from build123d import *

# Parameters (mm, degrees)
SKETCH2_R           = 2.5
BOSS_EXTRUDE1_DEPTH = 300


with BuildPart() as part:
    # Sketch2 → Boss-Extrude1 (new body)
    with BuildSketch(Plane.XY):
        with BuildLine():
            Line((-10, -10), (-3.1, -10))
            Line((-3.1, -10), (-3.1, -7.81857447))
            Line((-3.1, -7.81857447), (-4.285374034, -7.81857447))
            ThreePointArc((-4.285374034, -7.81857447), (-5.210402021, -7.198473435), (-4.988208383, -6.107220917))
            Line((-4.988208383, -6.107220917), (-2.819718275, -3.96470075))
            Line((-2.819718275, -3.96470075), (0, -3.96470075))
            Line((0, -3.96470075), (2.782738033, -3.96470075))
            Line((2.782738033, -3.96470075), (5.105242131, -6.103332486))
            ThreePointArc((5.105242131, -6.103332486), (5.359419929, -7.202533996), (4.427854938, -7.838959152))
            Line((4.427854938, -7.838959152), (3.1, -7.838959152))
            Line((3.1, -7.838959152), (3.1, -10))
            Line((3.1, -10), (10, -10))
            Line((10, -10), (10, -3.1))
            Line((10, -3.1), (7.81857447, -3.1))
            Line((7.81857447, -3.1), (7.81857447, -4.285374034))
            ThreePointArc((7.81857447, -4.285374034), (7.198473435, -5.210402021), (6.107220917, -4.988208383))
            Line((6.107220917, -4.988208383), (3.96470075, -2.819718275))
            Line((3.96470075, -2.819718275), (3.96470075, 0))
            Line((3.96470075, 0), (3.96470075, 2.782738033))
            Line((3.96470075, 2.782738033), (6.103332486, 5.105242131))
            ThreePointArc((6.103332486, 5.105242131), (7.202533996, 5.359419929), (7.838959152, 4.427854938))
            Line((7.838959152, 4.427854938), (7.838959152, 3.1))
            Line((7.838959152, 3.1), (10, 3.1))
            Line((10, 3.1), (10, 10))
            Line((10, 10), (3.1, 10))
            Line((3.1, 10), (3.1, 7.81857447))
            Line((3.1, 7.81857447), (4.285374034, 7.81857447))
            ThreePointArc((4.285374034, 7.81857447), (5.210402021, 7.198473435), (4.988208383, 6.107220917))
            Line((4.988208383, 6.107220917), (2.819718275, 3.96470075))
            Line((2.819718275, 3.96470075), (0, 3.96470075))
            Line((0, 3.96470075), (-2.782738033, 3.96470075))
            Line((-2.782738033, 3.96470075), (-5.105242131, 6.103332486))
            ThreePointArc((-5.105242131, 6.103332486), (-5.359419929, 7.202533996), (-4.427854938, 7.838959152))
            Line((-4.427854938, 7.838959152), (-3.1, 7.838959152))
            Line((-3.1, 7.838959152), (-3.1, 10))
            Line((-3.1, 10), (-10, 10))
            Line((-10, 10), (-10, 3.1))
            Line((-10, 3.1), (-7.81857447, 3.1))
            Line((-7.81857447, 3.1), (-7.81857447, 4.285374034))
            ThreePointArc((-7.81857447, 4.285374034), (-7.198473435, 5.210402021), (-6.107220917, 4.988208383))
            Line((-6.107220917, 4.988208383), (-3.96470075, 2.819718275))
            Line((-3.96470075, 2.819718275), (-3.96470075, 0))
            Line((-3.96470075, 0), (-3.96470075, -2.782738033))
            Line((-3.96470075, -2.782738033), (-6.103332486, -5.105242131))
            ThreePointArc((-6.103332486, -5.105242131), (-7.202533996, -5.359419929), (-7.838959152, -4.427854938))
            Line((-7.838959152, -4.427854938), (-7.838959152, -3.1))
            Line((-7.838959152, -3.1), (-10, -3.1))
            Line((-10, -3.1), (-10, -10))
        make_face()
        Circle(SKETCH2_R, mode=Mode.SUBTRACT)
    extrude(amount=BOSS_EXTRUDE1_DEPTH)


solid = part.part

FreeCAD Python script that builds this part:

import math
import FreeCAD as App
import Part
import Sketcher
from FreeCAD import Vector
Q = App.Units.Quantity

doc = App.newDocument("Part")
params = doc.addObject("Spreadsheet::Sheet", "Params")
for row, (alias, value) in enumerate([
    ("sketch1_diameter", "5 mm"),
    ("sketch1_radius", "1 mm"),
    ("sketch1_width", "6.9 mm"),
    ("pad1_length", "300 mm"),
], start=1):
    params.set(f"A{row}", alias)
    params.set(f"B{row}", "=" + value)
    params.setAlias(f"B{row}", alias)

body = doc.addObject("PartDesign::Body", "Body")

# Sketch on XY plane
sketch1 = body.newObject("Sketcher::SketchObject", "Sketch")
sketch1.AttachmentSupport = (doc.getObject("XY_Plane"), [""])
sketch1.MapMode = "FlatFace"
sketch1.addGeometry(Part.LineSegment(Vector(-10, -10, 0), Vector(-3.1, -10, 0)), False)
sketch1.addGeometry(Part.LineSegment(Vector(-3.1, -10, 0), Vector(-3.1, -7.818574, 0)), False)
sketch1.addGeometry(Part.LineSegment(Vector(-3.1, -7.818574, 0), Vector(-4.285374, -7.818574, 0)), False)
sketch1.addGeometry(Part.ArcOfCircle(Part.Circle(Vector(-4.285374, -6.818574, 0), Vector(0, 0, 1), 1), math.radians(134.654849), math.radians(270)), False)
sketch1.addGeometry(Part.LineSegment(Vector(-4.988208, -6.107221, 0), Vector(-2.819718, -3.964701, 0)), False)
sketch1.addGeometry(Part.LineSegment(Vector(-2.819718, -3.964701, 0), Vector(2.782738, -3.964701, 0)), False)
sketch1.addGeometry(Part.LineSegment(Vector(2.782738, -3.964701, 0), Vector(5.105242, -6.103332, 0)), False)
sketch1.addGeometry(Part.ArcOfCircle(Part.Circle(Vector(4.427855, -6.838959, 0), Vector(0, 0, 1), 1), math.radians(-90), math.radians(47.360195)), False)
sketch1.addGeometry(Part.LineSegment(Vector(4.427855, -7.838959, 0), Vector(3.1, -7.838959, 0)), False)
sketch1.addGeometry(Part.LineSegment(Vector(3.1, -7.838959, 0), Vector(3.1, -10, 0)), False)
sketch1.addGeometry(Part.LineSegment(Vector(3.1, -10, 0), Vector(10, -10, 0)), False)
sketch1.addGeometry(Part.LineSegment(Vector(10, -10, 0), Vector(10, -3.1, 0)), False)
sketch1.addGeometry(Part.LineSegment(Vector(10, -3.1, 0), Vector(7.818574, -3.1, 0)), False)
sketch1.addGeometry(Part.LineSegment(Vector(7.818574, -3.1, 0), Vector(7.818574, -4.285374, 0)), False)
sketch1.addGeometry(Part.ArcOfCircle(Part.Circle(Vector(6.818574, -4.285374, 0), Vector(0, 0, 1), 1), math.radians(-135.345151), math.radians(0)), False)
sketch1.addGeometry(Part.LineSegment(Vector(6.107221, -4.988208, 0), Vector(3.964701, -2.819718, 0)), False)
sketch1.addGeometry(Part.LineSegment(Vector(3.964701, -2.819718, 0), Vector(3.964701, 2.782738, 0)), False)
sketch1.addGeometry(Part.LineSegment(Vector(3.964701, 2.782738, 0), Vector(6.103332, 5.105242, 0)), False)
sketch1.addGeometry(Part.ArcOfCircle(Part.Circle(Vector(6.838959, 4.427855, 0), Vector(0, 0, 1), 1), math.radians(0), math.radians(137.360195)), False)
sketch1.addGeometry(Part.LineSegment(Vector(7.838959, 4.427855, 0), Vector(7.838959, 3.1, 0)), False)
sketch1.addGeometry(Part.LineSegment(Vector(7.838959, 3.1, 0), Vector(10, 3.1, 0)), False)
sketch1.addGeometry(Part.LineSegment(Vector(10, 3.1, 0), Vector(10, 10, 0)), False)
sketch1.addGeometry(Part.LineSegment(Vector(10, 10, 0), Vector(3.1, 10, 0)), False)
sketch1.addGeometry(Part.LineSegment(Vector(3.1, 10, 0), Vector(3.1, 7.818574, 0)), False)
sketch1.addGeometry(Part.LineSegment(Vector(3.1, 7.818574, 0), Vector(4.285374, 7.818574, 0)), False)
sketch1.addGeometry(Part.ArcOfCircle(Part.Circle(Vector(4.285374, 6.818574, 0), Vector(0, 0, 1), 1), math.radians(-45.345151), math.radians(90)), False)
sketch1.addGeometry(Part.LineSegment(Vector(4.988208, 6.107221, 0), Vector(2.819718, 3.964701, 0)), False)
sketch1.addGeometry(Part.LineSegment(Vector(2.819718, 3.964701, 0), Vector(-2.782738, 3.964701, 0)), False)
sketch1.addGeometry(Part.LineSegment(Vector(-2.782738, 3.964701, 0), Vector(-5.105242, 6.103332, 0)), False)
sketch1.addGeometry(Part.ArcOfCircle(Part.Circle(Vector(-4.427855, 6.838959, 0), Vector(0, 0, 1), 1), math.radians(90), math.radians(227.360195)), False)
sketch1.addGeometry(Part.LineSegment(Vector(-4.427855, 7.838959, 0), Vector(-3.1, 7.838959, 0)), False)
sketch1.addGeometry(Part.LineSegment(Vector(-3.1, 7.838959, 0), Vector(-3.1, 10, 0)), False)
sketch1.addGeometry(Part.LineSegment(Vector(-3.1, 10, 0), Vector(-10, 10, 0)), False)
sketch1.addGeometry(Part.LineSegment(Vector(-10, 10, 0), Vector(-10, 3.1, 0)), False)
sketch1.addGeometry(Part.LineSegment(Vector(-10, 3.1, 0), Vector(-7.818574, 3.1, 0)), False)
sketch1.addGeometry(Part.LineSegment(Vector(-7.818574, 3.1, 0), Vector(-7.818574, 4.285374, 0)), False)
sketch1.addGeometry(Part.ArcOfCircle(Part.Circle(Vector(-6.818574, 4.285374, 0), Vector(0, 0, 1), 1), math.radians(44.654849), math.radians(180)), False)
sketch1.addGeometry(Part.LineSegment(Vector(-6.107221, 4.988208, 0), Vector(-3.964701, 2.819718, 0)), False)
sketch1.addGeometry(Part.LineSegment(Vector(-3.964701, 2.819718, 0), Vector(-3.964701, -2.782738, 0)), False)
sketch1.addGeometry(Part.LineSegment(Vector(-3.964701, -2.782738, 0), Vector(-6.103332, -5.105242, 0)), False)
sketch1.addGeometry(Part.ArcOfCircle(Part.Circle(Vector(-6.838959, -4.427855, 0), Vector(0, 0, 1), 1), math.radians(-180), math.radians(-42.639805)), False)
sketch1.addGeometry(Part.LineSegment(Vector(-7.838959, -4.427855, 0), Vector(-7.838959, -3.1, 0)), False)
sketch1.addGeometry(Part.LineSegment(Vector(-7.838959, -3.1, 0), Vector(-10, -3.1, 0)), False)
sketch1.addGeometry(Part.LineSegment(Vector(-10, -3.1, 0), Vector(-10, -10, 0)), False)
sketch1.addGeometry(Part.Circle(Vector(0, 0, 0), Vector(0, 0, 1), 2.5), False)
sketch1.addConstraint(Sketcher.Constraint("Coincident", 0, 2, 1, 1))
sketch1.addConstraint(Sketcher.Constraint("Coincident", 1, 2, 2, 1))
sketch1.addConstraint(Sketcher.Constraint("Tangent", 2, 2, 3, 2))
sketch1.addConstraint(Sketcher.Constraint("Tangent", 3, 1, 4, 1))
sketch1.addConstraint(Sketcher.Constraint("Coincident", 4, 2, 5, 1))
sketch1.addConstraint(Sketcher.Constraint("Coincident", 5, 2, 6, 1))
sketch1.addConstraint(Sketcher.Constraint("Tangent", 6, 2, 7, 2))
sketch1.addConstraint(Sketcher.Constraint("Tangent", 7, 1, 8, 1))
sketch1.addConstraint(Sketcher.Constraint("Coincident", 8, 2, 9, 1))
sketch1.addConstraint(Sketcher.Constraint("Coincident", 9, 2, 10, 1))
sketch1.addConstraint(Sketcher.Constraint("Coincident", 10, 2, 11, 1))
sketch1.addConstraint(Sketcher.Constraint("Coincident", 11, 2, 12, 1))
sketch1.addConstraint(Sketcher.Constraint("Coincident", 12, 2, 13, 1))
sketch1.addConstraint(Sketcher.Constraint("Tangent", 13, 2, 14, 2))
sketch1.addConstraint(Sketcher.Constraint("Tangent", 14, 1, 15, 1))
sketch1.addConstraint(Sketcher.Constraint("Coincident", 15, 2, 16, 1))
sketch1.addConstraint(Sketcher.Constraint("Coincident", 16, 2, 17, 1))
sketch1.addConstraint(Sketcher.Constraint("Tangent", 17, 2, 18, 2))
sketch1.addConstraint(Sketcher.Constraint("Tangent", 18, 1, 19, 1))
sketch1.addConstraint(Sketcher.Constraint("Coincident", 19, 2, 20, 1))
sketch1.addConstraint(Sketcher.Constraint("Coincident", 20, 2, 21, 1))
sketch1.addConstraint(Sketcher.Constraint("Coincident", 21, 2, 22, 1))
sketch1.addConstraint(Sketcher.Constraint("Coincident", 22, 2, 23, 1))
sketch1.addConstraint(Sketcher.Constraint("Coincident", 23, 2, 24, 1))
sketch1.addConstraint(Sketcher.Constraint("Tangent", 24, 2, 25, 2))
sketch1.addConstraint(Sketcher.Constraint("Tangent", 25, 1, 26, 1))
sketch1.addConstraint(Sketcher.Constraint("Coincident", 26, 2, 27, 1))
sketch1.addConstraint(Sketcher.Constraint("Coincident", 27, 2, 28, 1))
sketch1.addConstraint(Sketcher.Constraint("Tangent", 28, 2, 29, 2))
sketch1.addConstraint(Sketcher.Constraint("Tangent", 29, 1, 30, 1))
sketch1.addConstraint(Sketcher.Constraint("Coincident", 30, 2, 31, 1))
sketch1.addConstraint(Sketcher.Constraint("Coincident", 31, 2, 32, 1))
sketch1.addConstraint(Sketcher.Constraint("Coincident", 32, 2, 33, 1))
sketch1.addConstraint(Sketcher.Constraint("Coincident", 33, 2, 34, 1))
sketch1.addConstraint(Sketcher.Constraint("Coincident", 34, 2, 35, 1))
sketch1.addConstraint(Sketcher.Constraint("Tangent", 35, 2, 36, 2))
sketch1.addConstraint(Sketcher.Constraint("Tangent", 36, 1, 37, 1))
sketch1.addConstraint(Sketcher.Constraint("Coincident", 37, 2, 38, 1))
sketch1.addConstraint(Sketcher.Constraint("Coincident", 38, 2, 39, 1))
sketch1.addConstraint(Sketcher.Constraint("Tangent", 39, 2, 40, 2))
sketch1.addConstraint(Sketcher.Constraint("Tangent", 40, 1, 41, 1))
sketch1.addConstraint(Sketcher.Constraint("Coincident", 41, 2, 42, 1))
sketch1.addConstraint(Sketcher.Constraint("Coincident", 42, 2, 43, 1))
sketch1.addConstraint(Sketcher.Constraint("Coincident", 43, 2, 0, 1))
sketch1.addConstraint(Sketcher.Constraint("Horizontal", 0))
sketch1.addConstraint(Sketcher.Constraint("Vertical", 1))
sketch1.addConstraint(Sketcher.Constraint("Horizontal", 2))
sketch1.addConstraint(Sketcher.Constraint("Horizontal", 5))
sketch1.addConstraint(Sketcher.Constraint("Horizontal", 8))
sketch1.addConstraint(Sketcher.Constraint("Vertical", 9))
sketch1.addConstraint(Sketcher.Constraint("Horizontal", 10))
sketch1.addConstraint(Sketcher.Constraint("Vertical", 11))
sketch1.addConstraint(Sketcher.Constraint("Horizontal", 12))
sketch1.addConstraint(Sketcher.Constraint("Vertical", 13))
sketch1.addConstraint(Sketcher.Constraint("Vertical", 16))
sketch1.addConstraint(Sketcher.Constraint("Vertical", 19))
sketch1.addConstraint(Sketcher.Constraint("Horizontal", 20))
sketch1.addConstraint(Sketcher.Constraint("Vertical", 21))
sketch1.addConstraint(Sketcher.Constraint("Horizontal", 22))
sketch1.addConstraint(Sketcher.Constraint("Vertical", 23))
sketch1.addConstraint(Sketcher.Constraint("Horizontal", 24))
sketch1.addConstraint(Sketcher.Constraint("Horizontal", 27))
sketch1.addConstraint(Sketcher.Constraint("Horizontal", 30))
sketch1.addConstraint(Sketcher.Constraint("Vertical", 31))
sketch1.addConstraint(Sketcher.Constraint("Horizontal", 32))
sketch1.addConstraint(Sketcher.Constraint("Vertical", 33))
sketch1.addConstraint(Sketcher.Constraint("Horizontal", 34))
sketch1.addConstraint(Sketcher.Constraint("Vertical", 35))
sketch1.addConstraint(Sketcher.Constraint("Vertical", 38))
sketch1.addConstraint(Sketcher.Constraint("Vertical", 41))
sketch1.addConstraint(Sketcher.Constraint("Horizontal", 42))
sketch1.addConstraint(Sketcher.Constraint("Vertical", 43))
sketch1.addConstraint(Sketcher.Constraint("Coincident", 44, 3, -1, 1))
sketch1.addConstraint(Sketcher.Constraint("Equal", 3, 7))
sketch1.addConstraint(Sketcher.Constraint("Equal", 7, 14))
sketch1.addConstraint(Sketcher.Constraint("Equal", 14, 18))
sketch1.addConstraint(Sketcher.Constraint("Equal", 18, 25))
sketch1.addConstraint(Sketcher.Constraint("Equal", 25, 29))
sketch1.addConstraint(Sketcher.Constraint("Equal", 29, 36))
sketch1.addConstraint(Sketcher.Constraint("Equal", 36, 40))
sketch1.addConstraint(Sketcher.Constraint("Symmetric", 3, 3, 25, 3, -1, 1))
sketch1.addConstraint(Sketcher.Constraint("Symmetric", 7, 3, 29, 3, -1, 1))
sketch1.addConstraint(Sketcher.Constraint("Symmetric", 14, 3, 36, 3, -1, 1))
sketch1.addConstraint(Sketcher.Constraint("Symmetric", 18, 3, 40, 3, -1, 1))
sketch1.addConstraint(Sketcher.Constraint("Symmetric", 0, 2, 22, 2, -1, 1))
sketch1.addConstraint(Sketcher.Constraint("Symmetric", 4, 2, 26, 2, -1, 1))
sketch1.addConstraint(Sketcher.Constraint("Symmetric", 9, 2, 31, 2, -1, 1))
sketch1.addConstraint(Sketcher.Constraint("Symmetric", 11, 2, 33, 2, -1, 1))
sketch1.addConstraint(Sketcher.Constraint("Symmetric", 15, 2, 37, 2, -1, 1))
sketch1.addConstraint(Sketcher.Constraint("Symmetric", 20, 2, 42, 2, -1, 1))
sketch1.addConstraint(Sketcher.Constraint("Symmetric", 0, 2, 9, 2, -2))
sketch1.addConstraint(Sketcher.Constraint("Symmetric", 20, 2, 33, 2, -2))
sketch1.addConstraint(Sketcher.Constraint("Perpendicular", 4, 15))
sketch1.addConstraint(Sketcher.Constraint("Perpendicular", 6, 17))
sketch1.addConstraint(Sketcher.Constraint("Perpendicular", 17, 28))
sketch1.addConstraint(Sketcher.Constraint("Perpendicular", 28, 39))
sketch1.addConstraint(Sketcher.Constraint("Equal", 34, 1))
sketch1.addConstraint(Sketcher.Constraint("Equal", 42, 9))
sketch1.addConstraint(Sketcher.Constraint("Equal", 32, 11))
sketch1.addConstraint(Sketcher.Constraint("Equal", 24, 13))
sketch1.addConstraint(Sketcher.Constraint("Equal", 27, 16))
sketch1.addConstraint(Sketcher.Constraint("Equal", 30, 19))
sketch1.addConstraint(Sketcher.Constraint("Equal", 4, 15))
sketch1.addConstraint(Sketcher.Constraint("Diameter", 44, Q("5 mm")))
sketch1.addConstraint(Sketcher.Constraint("Radius", 3, Q("1 mm")))
sketch1.addConstraint(Sketcher.Constraint("DistanceX", 0, 1, 0, 2, Q("6.9 mm")))
sketch1.addConstraint(Sketcher.Constraint("DistanceY", 0, 2, -1, 1, Q("10 mm")))
sketch1.addConstraint(Sketcher.Constraint("Distance", 4, Q("3.0484 mm")))
sketch1.addConstraint(Sketcher.Constraint("DistanceX", 20, 1, 20, 2, Q("2.161041 mm")))
sketch1.addConstraint(Sketcher.Constraint("DistanceY", 4, 2, -1, 1, Q("3.964701 mm")))
sketch1.addConstraint(Sketcher.Constraint("DistanceY", 3, 3, 14, 3, Q("2.5332 mm")))
sketch1.addConstraint(Sketcher.Constraint("DistanceX", 2, 2, 2, 1, Q("1.185374 mm")))
sketch1.addConstraint(Sketcher.Constraint("DistanceX", 5, 1, 5, 2, Q("5.602456 mm")))
sketch1.addConstraint(Sketcher.Constraint("DistanceX", 8, 2, 8, 1, Q("1.327855 mm")))
sketch1.setExpression("Constraints[103]", "Params.sketch1_diameter")
sketch1.setExpression("Constraints[104]", "Params.sketch1_radius")
sketch1.setExpression("Constraints[105]", "Params.sketch1_width")
pad1 = body.newObject("PartDesign::Pad", "Pad")
pad1.Profile = sketch1
pad1.setExpression("Length", "Params.pad1_length")

doc.recompute()
